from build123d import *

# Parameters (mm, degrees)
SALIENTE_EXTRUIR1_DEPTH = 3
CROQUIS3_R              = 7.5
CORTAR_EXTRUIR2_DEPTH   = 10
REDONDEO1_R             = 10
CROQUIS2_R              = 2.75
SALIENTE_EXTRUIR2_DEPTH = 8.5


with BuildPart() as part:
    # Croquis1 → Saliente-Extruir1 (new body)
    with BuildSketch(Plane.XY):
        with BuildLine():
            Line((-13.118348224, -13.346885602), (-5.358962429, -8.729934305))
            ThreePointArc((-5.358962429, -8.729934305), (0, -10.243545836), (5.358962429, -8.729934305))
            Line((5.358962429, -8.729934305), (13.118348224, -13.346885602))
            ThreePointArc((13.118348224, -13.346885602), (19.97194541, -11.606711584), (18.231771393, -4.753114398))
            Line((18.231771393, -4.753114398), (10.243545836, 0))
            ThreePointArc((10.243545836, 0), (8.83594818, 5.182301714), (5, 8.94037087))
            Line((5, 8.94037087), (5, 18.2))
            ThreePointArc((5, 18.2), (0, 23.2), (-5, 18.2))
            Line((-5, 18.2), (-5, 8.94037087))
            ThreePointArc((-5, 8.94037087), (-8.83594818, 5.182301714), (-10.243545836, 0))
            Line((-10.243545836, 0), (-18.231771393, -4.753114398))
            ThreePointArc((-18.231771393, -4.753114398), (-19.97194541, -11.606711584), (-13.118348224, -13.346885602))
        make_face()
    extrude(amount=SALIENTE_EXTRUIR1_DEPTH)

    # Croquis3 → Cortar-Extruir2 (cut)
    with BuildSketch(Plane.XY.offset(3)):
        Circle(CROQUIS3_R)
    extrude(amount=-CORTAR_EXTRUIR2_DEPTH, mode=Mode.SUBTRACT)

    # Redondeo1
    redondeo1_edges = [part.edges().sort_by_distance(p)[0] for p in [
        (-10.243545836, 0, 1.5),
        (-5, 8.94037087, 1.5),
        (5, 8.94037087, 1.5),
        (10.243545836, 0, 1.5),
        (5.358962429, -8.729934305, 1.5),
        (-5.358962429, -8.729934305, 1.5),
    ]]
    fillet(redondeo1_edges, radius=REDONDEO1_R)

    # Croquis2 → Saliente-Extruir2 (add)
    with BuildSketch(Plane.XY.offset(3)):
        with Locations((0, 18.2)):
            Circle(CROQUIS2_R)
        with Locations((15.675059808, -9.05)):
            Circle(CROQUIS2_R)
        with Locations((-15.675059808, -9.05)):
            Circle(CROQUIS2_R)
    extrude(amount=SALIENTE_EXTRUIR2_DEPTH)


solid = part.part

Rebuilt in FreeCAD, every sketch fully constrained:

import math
import FreeCAD as App
import Part
import Sketcher

V = App.Vector
Q = App.Units.Quantity


def edges_at(feature, points):
    """Names of the edges that pass closest to the given points."""
    edges = feature.Shape.Edges
    near = lambda p: min(range(len(edges)), key=lambda i: edges[i].distToShape(Part.Vertex(*p))[0])
    return sorted({f"Edge{near(p) + 1}" for p in points})

doc = App.newDocument("Part")
body = doc.addObject("PartDesign::Body", "Body")

# Sketch on XY plane
sketch1 = body.newObject("Sketcher::SketchObject", "Sketch")
sketch1.AttachmentSupport = (doc.getObject("XY_Plane"), [""])
sketch1.MapMode = "FlatFace"
sketch1.addGeometry([
    Part.LineSegment(V(-13.118348, -13.346886, 0), V(-5.358962, -8.729934, 0)),  # 0
    Part.ArcOfCircle(Part.Circle(V(0, 0, 0), V(0, 0, 1), 10.243546), math.radians(-121.544123), math.radians(-58.455877)),  # 1
    Part.LineSegment(V(5.358962, -8.729934, 0), V(13.118348, -13.346886, 0)),  # 2
    Part.ArcOfCircle(Part.Circle(V(15.67506, -9.05, 0), V(0, 0, 1), 5), math.radians(-120.753282), math.radians(59.246718)),  # 3
    Part.LineSegment(V(18.231771, -4.753114, 0), V(10.243546, 0, 0)),  # 4
    Part.ArcOfCircle(Part.Circle(V(0, 0, 0), V(0, 0, 1), 10.243546), math.radians(0), math.radians(60.783421)),  # 5
    Part.LineSegment(V(5, 8.940371, 0), V(5, 18.2, 0)),  # 6
    Part.ArcOfCircle(Part.Circle(V(0, 18.2, 0), V(0, 0, 1), 5), math.radians(0), math.radians(180)),  # 7
    Part.LineSegment(V(-5, 18.2, 0), V(-5, 8.940371, 0)),  # 8
    Part.ArcOfCircle(Part.Circle(V(0, 0, 0), V(0, 0, 1), 10.243546), math.radians(119.216579), math.radians(180)),  # 9
    Part.LineSegment(V(-10.243546, 0, 0), V(-18.231771, -4.753114, 0)),  # 10
    Part.ArcOfCircle(Part.Circle(V(-15.67506, -9.05, 0), V(0, 0, 1), 5), math.radians(120.753282), math.radians(300.753282)),  # 11
], False)
sketch1.addConstraint([
    Sketcher.Constraint("Coincident", 0, 2, 1, 1),
    Sketcher.Constraint("Coincident", 1, 2, 2, 1),
    Sketcher.Constraint("Tangent", 2, 2, 3, 1),
    Sketcher.Constraint("Tangent", 3, 2, 4, 1),
    Sketcher.Constraint("Coincident", 4, 2, 5, 1),
    Sketcher.Constraint("Coincident", 5, 2, 6, 1),
    Sketcher.Constraint("Tangent", 6, 2, 7, 1),
    Sketcher.Constraint("Tangent", 7, 2, 8, 1),
    Sketcher.Constraint("Coincident", 8, 2, 9, 1),
    Sketcher.Constraint("Coincident", 9, 2, 10, 1),
    Sketcher.Constraint("Tangent", 10, 2, 11, 1),
    Sketcher.Constraint("Tangent", 11, 2, 0, 1),
    Sketcher.Constraint("Vertical", 6),
    Sketcher.Constraint("Vertical", 8),
    Sketcher.Constraint("Coincident", 1, 3, -1, 1),
    Sketcher.Constraint("Coincident", 5, 3, -1, 1),
    Sketcher.Constraint("Coincident", 9, 3, -1, 1),
    Sketcher.Constraint("Equal", 1, 5),
    Sketcher.Constraint("Equal", 3, 7),
    Sketcher.Constraint("Equal", 5, 9),
    Sketcher.Constraint("Equal", 7, 11),
    Sketcher.Constraint("Symmetric", 3, 3, 11, 3, -2),
    Sketcher.Constraint("PointOnObject", 7, 3, -2),
    Sketcher.Constraint("PointOnObject", 4, 2, -1),
    Sketcher.Constraint("PointOnObject", 9, 2, -1),
    Sketcher.Constraint("Parallel", 2, 4),
    Sketcher.Constraint("Parallel", 0, 10),
    Sketcher.Constraint("Radius", 3, Q("5 mm")),
    Sketcher.Constraint("DistanceY", -1, 1, 7, 3, Q("18.2 mm")),
    Sketcher.Constraint("DistanceY", 3, 3, -1, 1, Q("9.05 mm")),
    Sketcher.Constraint("Radius", 1, Q("10.243546 mm")),
    Sketcher.Constraint("Distance", 0, Q("9.029081 mm")),
])
pad1 = body.newObject("PartDesign::Pad", "Pad")
pad1.Profile = sketch1
pad1.Length = 3

# Sketch on XY plane
sketch2 = body.newObject("Sketcher::SketchObject", "Sketch001")
sketch2.AttachmentSupport = (doc.getObject("XY_Plane"), [""])
sketch2.MapMode = "FlatFace"
sketch2.AttachmentOffset = App.Placement(V(0, 0, 3), App.Rotation())
sketch2.addGeometry(Part.Circle(V(0, 0, 0), V(0, 0, 1), 7.5), False)
sketch2.addConstraint([
    Sketcher.Constraint("Coincident", 0, 3, -1, 1),
    Sketcher.Constraint("Diameter", 0, Q("15 mm")),
])
pocket1 = body.newObject("PartDesign::Pocket", "Pocket")
pocket1.Profile = sketch2
pocket1.Length = 10
doc.recompute()

fillet = body.newObject("PartDesign::Fillet", "Fillet")
fillet.Base = (pocket1, edges_at(pocket1, [
    (-10.244, 0, 1.5),
    (-5, 8.94, 1.5),
    (5, 8.94, 1.5),
    (10.244, 0, 1.5),
    (5.359, -8.73, 1.5),
    (-5.359, -8.73, 1.5),
]))
fillet.Radius = 10

# Sketch on XY plane
sketch3 = body.newObject("Sketcher::SketchObject", "Sketch002")
sketch3.AttachmentSupport = (doc.getObject("XY_Plane"), [""])
sketch3.MapMode = "FlatFace"
sketch3.AttachmentOffset = App.Placement(V(0, 0, 3), App.Rotation())
sketch3.addGeometry([
    Part.Circle(V(0, 18.2, 0), V(0, 0, 1), 2.75),
    Part.Circle(V(15.67506, -9.05, 0), V(0, 0, 1), 2.75),
    Part.Circle(V(-15.67506, -9.05, 0), V(0, 0, 1), 2.75),
], False)
sketch3.addConstraint([
    Sketcher.Constraint("Equal", 0, 1),
    Sketcher.Constraint("Equal", 1, 2),
    Sketcher.Constraint("Symmetric", 1, 3, 2, 3, -2),
    Sketcher.Constraint("PointOnObject", 0, 3, -2),
    Sketcher.Constraint("Diameter", 0, Q("5.5 mm")),
    Sketcher.Constraint("DistanceY", -1, 1, 0, 3, Q("18.2 mm")),
    Sketcher.Constraint("DistanceY", 1, 3, -1, 1, Q("9.05 mm")),
    Sketcher.Constraint("DistanceX", -1, 1, 1, 3, Q("15.67506 mm")),
])
pad2 = body.newObject("PartDesign::Pad", "Pad001")
pad2.Profile = sketch3
pad2.Length = 8.5

doc.recompute()
